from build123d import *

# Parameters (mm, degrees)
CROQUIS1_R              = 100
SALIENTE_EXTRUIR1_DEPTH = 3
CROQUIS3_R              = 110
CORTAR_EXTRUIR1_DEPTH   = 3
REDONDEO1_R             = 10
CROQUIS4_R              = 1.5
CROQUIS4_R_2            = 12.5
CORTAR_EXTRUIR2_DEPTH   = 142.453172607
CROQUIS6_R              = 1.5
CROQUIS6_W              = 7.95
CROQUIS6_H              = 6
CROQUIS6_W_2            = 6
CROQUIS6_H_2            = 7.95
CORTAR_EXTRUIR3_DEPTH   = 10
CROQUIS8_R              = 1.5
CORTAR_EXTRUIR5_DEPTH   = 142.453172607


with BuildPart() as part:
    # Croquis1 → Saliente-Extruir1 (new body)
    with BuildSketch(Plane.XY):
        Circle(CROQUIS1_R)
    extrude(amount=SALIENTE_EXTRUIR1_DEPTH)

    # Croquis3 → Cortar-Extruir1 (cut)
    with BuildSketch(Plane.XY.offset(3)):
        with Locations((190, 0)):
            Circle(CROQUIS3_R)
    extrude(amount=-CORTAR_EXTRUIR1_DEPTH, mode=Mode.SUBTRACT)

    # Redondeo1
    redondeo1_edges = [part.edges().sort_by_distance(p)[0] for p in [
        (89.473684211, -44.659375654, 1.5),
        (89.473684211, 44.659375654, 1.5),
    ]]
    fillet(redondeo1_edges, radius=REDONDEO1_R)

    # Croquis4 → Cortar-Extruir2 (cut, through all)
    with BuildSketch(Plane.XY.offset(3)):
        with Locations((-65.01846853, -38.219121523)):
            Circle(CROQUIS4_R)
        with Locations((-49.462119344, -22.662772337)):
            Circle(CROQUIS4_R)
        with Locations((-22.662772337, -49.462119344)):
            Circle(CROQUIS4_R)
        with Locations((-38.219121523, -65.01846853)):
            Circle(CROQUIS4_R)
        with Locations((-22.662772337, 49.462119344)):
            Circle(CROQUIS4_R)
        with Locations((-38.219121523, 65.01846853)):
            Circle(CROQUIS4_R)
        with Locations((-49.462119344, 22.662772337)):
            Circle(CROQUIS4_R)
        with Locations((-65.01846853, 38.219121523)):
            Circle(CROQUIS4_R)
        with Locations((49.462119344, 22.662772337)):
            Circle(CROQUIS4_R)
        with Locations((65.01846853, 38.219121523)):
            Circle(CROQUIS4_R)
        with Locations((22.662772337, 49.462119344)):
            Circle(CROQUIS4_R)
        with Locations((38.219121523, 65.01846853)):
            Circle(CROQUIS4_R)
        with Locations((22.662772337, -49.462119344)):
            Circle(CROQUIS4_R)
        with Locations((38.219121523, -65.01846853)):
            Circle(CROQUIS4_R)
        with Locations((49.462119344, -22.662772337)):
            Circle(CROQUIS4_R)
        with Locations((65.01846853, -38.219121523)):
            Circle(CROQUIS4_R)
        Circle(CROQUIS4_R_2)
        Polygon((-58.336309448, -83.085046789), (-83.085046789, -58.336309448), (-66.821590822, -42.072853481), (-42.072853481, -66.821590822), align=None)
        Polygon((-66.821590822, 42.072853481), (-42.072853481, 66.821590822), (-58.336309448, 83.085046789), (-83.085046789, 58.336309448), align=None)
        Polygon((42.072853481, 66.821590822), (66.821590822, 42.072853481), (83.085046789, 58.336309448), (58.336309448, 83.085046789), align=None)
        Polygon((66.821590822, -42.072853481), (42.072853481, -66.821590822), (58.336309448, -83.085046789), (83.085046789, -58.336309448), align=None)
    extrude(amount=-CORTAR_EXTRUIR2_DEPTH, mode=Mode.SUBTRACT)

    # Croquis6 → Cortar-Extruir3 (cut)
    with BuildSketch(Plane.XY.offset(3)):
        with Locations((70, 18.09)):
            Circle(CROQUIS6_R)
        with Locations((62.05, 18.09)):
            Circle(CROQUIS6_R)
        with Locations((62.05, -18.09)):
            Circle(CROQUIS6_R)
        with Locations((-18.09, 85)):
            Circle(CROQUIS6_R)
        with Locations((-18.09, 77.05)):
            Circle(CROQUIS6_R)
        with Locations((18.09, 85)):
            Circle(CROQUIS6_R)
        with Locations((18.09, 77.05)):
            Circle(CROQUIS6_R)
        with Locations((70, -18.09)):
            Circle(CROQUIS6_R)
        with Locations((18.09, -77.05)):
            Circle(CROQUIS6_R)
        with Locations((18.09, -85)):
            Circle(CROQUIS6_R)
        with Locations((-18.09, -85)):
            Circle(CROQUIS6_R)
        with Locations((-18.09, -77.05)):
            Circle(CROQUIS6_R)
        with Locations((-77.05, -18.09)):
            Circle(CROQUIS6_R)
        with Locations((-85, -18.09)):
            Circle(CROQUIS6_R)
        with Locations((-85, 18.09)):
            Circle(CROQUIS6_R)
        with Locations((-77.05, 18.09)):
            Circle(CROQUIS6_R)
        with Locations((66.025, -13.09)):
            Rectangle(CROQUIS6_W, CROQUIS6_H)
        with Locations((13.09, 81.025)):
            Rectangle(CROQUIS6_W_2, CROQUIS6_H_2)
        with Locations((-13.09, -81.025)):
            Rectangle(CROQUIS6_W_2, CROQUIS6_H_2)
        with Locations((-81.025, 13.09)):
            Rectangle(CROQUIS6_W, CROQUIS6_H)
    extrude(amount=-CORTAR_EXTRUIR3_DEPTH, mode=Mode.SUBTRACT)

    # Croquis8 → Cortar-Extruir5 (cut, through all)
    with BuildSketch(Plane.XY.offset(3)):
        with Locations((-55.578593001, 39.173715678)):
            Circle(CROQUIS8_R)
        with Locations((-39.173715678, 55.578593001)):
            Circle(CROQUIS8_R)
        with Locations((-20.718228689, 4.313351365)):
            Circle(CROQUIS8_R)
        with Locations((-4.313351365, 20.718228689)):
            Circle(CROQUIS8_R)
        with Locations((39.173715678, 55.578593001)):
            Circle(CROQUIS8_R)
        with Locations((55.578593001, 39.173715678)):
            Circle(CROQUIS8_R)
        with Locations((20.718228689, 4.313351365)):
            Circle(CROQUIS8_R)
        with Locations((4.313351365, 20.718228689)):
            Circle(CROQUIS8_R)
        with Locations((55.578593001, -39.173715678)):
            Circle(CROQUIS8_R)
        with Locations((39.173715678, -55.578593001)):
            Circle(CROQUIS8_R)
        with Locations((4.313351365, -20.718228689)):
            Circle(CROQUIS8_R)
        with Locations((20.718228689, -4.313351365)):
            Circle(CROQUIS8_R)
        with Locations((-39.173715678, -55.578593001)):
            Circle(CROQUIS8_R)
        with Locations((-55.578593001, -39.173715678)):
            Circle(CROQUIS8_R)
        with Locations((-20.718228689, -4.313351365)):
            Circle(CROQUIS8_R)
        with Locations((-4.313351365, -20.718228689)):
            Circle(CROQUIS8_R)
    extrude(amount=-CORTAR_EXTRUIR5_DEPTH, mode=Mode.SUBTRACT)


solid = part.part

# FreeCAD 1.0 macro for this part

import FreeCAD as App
import Part
import Sketcher


def edges_at(feature, points):
    """Names of the edges that pass closest to the given points."""
    edges = feature.Shape.Edges
    near = lambda p: min(range(len(edges)), key=lambda i: edges[i].distToShape(Part.Vertex(*p))[0])
    return sorted({f"Edge{near(p) + 1}" for p in points})

doc = App.newDocument("Part")
body = doc.addObject("PartDesign::Body", "Body")

sketch1 = body.newObject("Sketcher::SketchObject", "Sketch")
sketch1.AttachmentSupport = (doc.getObject("XY_Plane"), [""])
sketch1.MapMode = "FlatFace"
sketch1.addGeometry(Part.Circle(App.Vector(0, 0, 0), App.Vector(0, 0, 1), 100), False)
sketch1.addConstraint(Sketcher.Constraint("Coincident", 0, 3, -1, 1))
sketch1.addConstraint(Sketcher.Constraint("Diameter", 0, 200.0))
pad1 = body.newObject("PartDesign::Pad", "Pad")
pad1.Profile = sketch1
pad1.Length = 3

sketch2 = body.newObject("Sketcher::SketchObject", "Sketch001")
sketch2.AttachmentSupport = (doc.getObject("XY_Plane"), [""])
sketch2.MapMode = "FlatFace"
sketch2.AttachmentOffset = App.Placement(App.Vector(0, 0, 3), App.Rotation())
sketch2.addGeometry(Part.Circle(App.Vector(190, 0, 0), App.Vector(0, 0, 1), 110), False)
sketch2.addConstraint(Sketcher.Constraint("PointOnObject", 0, 3, -1))
sketch2.addConstraint(Sketcher.Constraint("Diameter", 0, 220.0))
sketch2.addConstraint(Sketcher.Constraint("DistanceX", -1, 1, 0, 3, 190.0))
pocket1 = body.newObject("PartDesign::Pocket", "Pocket")
pocket1.Profile = sketch2
pocket1.Length = 3
doc.recompute()

fillet = body.newObject("PartDesign::Fillet", "Fillet")
fillet.Base = (pocket1, edges_at(pocket1, [(89.474, -44.659, 1.5), (89.474, 44.659, 1.5)]))
fillet.Radius = 10

sketch3 = body.newObject("Sketcher::SketchObject", "Sketch002")
sketch3.AttachmentSupport = (doc.getObject("XY_Plane"), [""])
sketch3.MapMode = "FlatFace"
sketch3.AttachmentOffset = App.Placement(App.Vector(0, 0, 3), App.Rotation())
sketch3.addGeometry(Part.Circle(App.Vector(-65.018469, -38.219122, 0), App.Vector(0, 0, 1), 1.5), False)
sketch3.addGeometry(Part.Circle(App.Vector(-49.462119, -22.662772, 0), App.Vector(0, 0, 1), 1.5), False)
sketch3.addGeometry(Part.Circle(App.Vector(-22.662772, -49.462119, 0), App.Vector(0, 0, 1), 1.5), False)
sketch3.addGeometry(Part.Circle(App.Vector(-38.219122, -65.018469, 0), App.Vector(0, 0, 1), 1.5), False)
sketch3.addGeometry(Part.Circle(App.Vector(-22.662772, 49.462119, 0), App.Vector(0, 0, 1), 1.5), False)
sketch3.addGeometry(Part.Circle(App.Vector(-38.219122, 65.018469, 0), App.Vector(0, 0, 1), 1.5), False)
sketch3.addGeometry(Part.Circle(App.Vector(-49.462119, 22.662772, 0), App.Vector(0, 0, 1), 1.5), False)
sketch3.addGeometry(Part.Circle(App.Vector(-65.018469, 38.219122, 0), App.Vector(0, 0, 1), 1.5), False)
sketch3.addGeometry(Part.Circle(App.Vector(49.462119, 22.662772, 0), App.Vector(0, 0, 1), 1.5), False)
sketch3.addGeometry(Part.Circle(App.Vector(65.018469, 38.219122, 0), App.Vector(0, 0, 1), 1.5), False)
sketch3.addGeometry(Part.Circle(App.Vector(22.662772, 49.462119, 0), App.Vector(0, 0, 1), 1.5), False)
sketch3.addGeometry(Part.Circle(App.Vector(38.219122, 65.018469, 0), App.Vector(0, 0, 1), 1.5), False)
sketch3.addGeometry(Part.Circle(App.Vector(22.662772, -49.462119, 0), App.Vector(0, 0, 1), 1.5), False)
sketch3.addGeometry(Part.Circle(App.Vector(38.219122, -65.018469, 0), App.Vector(0, 0, 1), 1.5), False)
sketch3.addGeometry(Part.Circle(App.Vector(49.462119, -22.662772, 0), App.Vector(0, 0, 1), 1.5), False)
sketch3.addGeometry(Part.Circle(App.Vector(65.018469, -38.219122, 0), App.Vector(0, 0, 1), 1.5), False)
sketch3.addGeometry(Part.Circle(App.Vector(0, 0, 0), App.Vector(0, 0, 1), 12.5), False)
sketch3.addGeometry(Part.LineSegment(App.Vector(-83.085047, -58.336309, 0), App.Vector(-58.336309, -83.085047, 0)), False)
sketch3.addGeometry(Part.LineSegment(App.Vector(-58.336309, -83.085047, 0), App.Vector(-42.072853, -66.821591, 0)), False)
sketch3.addGeometry(Part.LineSegment(App.Vector(-42.072853, -66.821591, 0), App.Vector(-66.821591, -42.072853, 0)), False)
sketch3.addGeometry(Part.LineSegment(App.Vector(-66.821591, -42.072853, 0), App.Vector(-83.085047, -58.336309, 0)), False)
sketch3.addGeometry(Part.LineSegment(App.Vector(-66.821591, 42.072853, 0), App.Vector(-42.072853, 66.821591, 0)), False)
sketch3.addGeometry(Part.LineSegment(App.Vector(-42.072853, 66.821591, 0), App.Vector(-58.336309, 83.085047, 0)), False)
sketch3.addGeometry(Part.LineSegment(App.Vector(-58.336309, 83.085047, 0), App.Vector(-83.085047, 58.336309, 0)), False)
sketch3.addGeometry(Part.LineSegment(App.Vector(-83.085047, 58.336309, 0), App.Vector(-66.821591, 42.072853, 0)), False)
sketch3.addGeometry(Part.LineSegment(App.Vector(42.072853, 66.821591, 0), App.Vector(66.821591, 42.072853, 0)), False)
sketch3.addGeometry(Part.LineSegment(App.Vector(66.821591, 42.072853, 0), App.Vector(83.085047, 58.336309, 0)), False)
sketch3.addGeometry(Part.LineSegment(App.Vector(83.085047, 58.336309, 0), App.Vector(58.336309, 83.085047, 0)), False)
sketch3.addGeometry(Part.LineSegment(App.Vector(58.336309, 83.085047, 0), App.Vector(42.072853, 66.821591, 0)), False)
sketch3.addGeometry(Part.LineSegment(App.Vector(66.821591, -42.072853, 0), App.Vector(42.072853, -66.821591, 0)), False)
sketch3.addGeometry(Part.LineSegment(App.Vector(42.072853, -66.821591, 0), App.Vector(58.336309, -83.085047, 0)), False)
sketch3.addGeometry(Part.LineSegment(App.Vector(58.336309, -83.085047, 0), App.Vector(83.085047, -58.336309, 0)), False)
sketch3.addGeometry(Part.LineSegment(App.Vector(83.085047, -58.336309, 0), App.Vector(66.821591, -42.072853, 0)), False)
sketch3.addConstraint(Sketcher.Constraint("Coincident", 17, 2, 18, 1))
sketch3.addConstraint(Sketcher.Constraint("Coincident", 18, 2, 19, 1))
sketch3.addConstraint(Sketcher.Constraint("Coincident", 19, 2, 20, 1))
sketch3.addConstraint(Sketcher.Constraint("Coincident", 20, 2, 17, 1))
sketch3.addConstraint(Sketcher.Constraint("Coincident", 21, 2, 22, 1))
sketch3.addConstraint(Sketcher.Constraint("Coincident", 22, 2, 23, 1))
sketch3.addConstraint(Sketcher.Constraint("Coincident", 23, 2, 24, 1))
sketch3.addConstraint(Sketcher.Constraint("Coincident", 24, 2, 21, 1))
sketch3.addConstraint(Sketcher.Constraint("Coincident", 25, 2, 26, 1))
sketch3.addConstraint(Sketcher.Constraint("Coincident", 26, 2, 27, 1))
sketch3.addConstraint(Sketcher.Constraint("Coincident", 27, 2, 28, 1))
sketch3.addConstraint(Sketcher.Constraint("Coincident", 28, 2, 25, 1))
sketch3.addConstraint(Sketcher.Constraint("Coincident", 29, 2, 30, 1))
sketch3.addConstraint(Sketcher.Constraint("Coincident", 30, 2, 31, 1))
sketch3.addConstraint(Sketcher.Constraint("Coincident", 31, 2, 32, 1))
sketch3.addConstraint(Sketcher.Constraint("Coincident", 32, 2, 29, 1))
sketch3.addConstraint(Sketcher.Constraint("Coincident", 16, 3, -1, 1))
sketch3.addConstraint(Sketcher.Constraint("Equal", 0, 1))
sketch3.addConstraint(Sketcher.Constraint("Equal", 1, 2))
sketch3.addConstraint(Sketcher.Constraint("Equal", 2, 3))
sketch3.addConstraint(Sketcher.Constraint("Equal", 3, 4))
sketch3.addConstraint(Sketcher.Constraint("Equal", 4, 5))
sketch3.addConstraint(Sketcher.Constraint("Equal", 5, 6))
sketch3.addConstraint(Sketcher.Constraint("Equal", 6, 7))
sketch3.addConstraint(Sketcher.Constraint("Equal", 7, 8))
sketch3.addConstraint(Sketcher.Constraint("Equal", 8, 9))
sketch3.addConstraint(Sketcher.Constraint("Equal", 9, 10))
sketch3.addConstraint(Sketcher.Constraint("Equal", 10, 11))
sketch3.addConstraint(Sketcher.Constraint("Equal", 11, 12))
sketch3.addConstraint(Sketcher.Constraint("Equal", 12, 13))
sketch3.addConstraint(Sketcher.Constraint("Equal", 13, 14))
sketch3.addConstraint(Sketcher.Constraint("Equal", 14, 15))
sketch3.addConstraint(Sketcher.Constraint("Symmetric", 1, 3, 8, 3, -1, 1))
sketch3.addConstraint(Sketcher.Constraint("Symmetric", 0, 3, 9, 3, -1, 1))
sketch3.addConstraint(Sketcher.Constraint("Symmetric", 2, 3, 10, 3, -1, 1))
sketch3.addConstraint(Sketcher.Constraint("Symmetric", 3, 3, 11, 3, -1, 1))
sketch3.addConstraint(Sketcher.Constraint("Symmetric", 4, 3, 12, 3, -1, 1))
sketch3.addConstraint(Sketcher.Constraint("Symmetric", 5, 3, 13, 3, -1, 1))
sketch3.addConstraint(Sketcher.Constraint("Symmetric", 6, 3, 14, 3, -1, 1))
sketch3.addConstraint(Sketcher.Constraint("Symmetric", 7, 3, 15, 3, -1, 1))
sketch3.addConstraint(Sketcher.Constraint("Symmetric", 19, 2, 25, 2, -1, 1))
sketch3.addConstraint(Sketcher.Constraint("Symmetric", 20, 2, 26, 2, -1, 1))
sketch3.addConstraint(Sketcher.Constraint("Symmetric", 17, 2, 27, 2, -1, 1))
sketch3.addConstraint(Sketcher.Constraint("Symmetric", 18, 2, 28, 2, -1, 1))
sketch3.addConstraint(Sketcher.Constraint("Symmetric", 21, 2, 29, 2, -1, 1))
sketch3.addConstraint(Sketcher.Constraint("Symmetric", 22, 2, 30, 2, -1, 1))
sketch3.addConstraint(Sketcher.Constraint("Symmetric", 23, 2, 31, 2, -1, 1))
sketch3.addConstraint(Sketcher.Constraint("Symmetric", 24, 2, 32, 2, -1, 1))
sketch3.addConstraint(Sketcher.Constraint("Symmetric", 6, 3, 8, 3, -2))
sketch3.addConstraint(Sketcher.Constraint("Symmetric", 7, 3, 9, 3, -2))
sketch3.addConstraint(Sketcher.Constraint("Symmetric", 4, 3, 10, 3, -2))
sketch3.addConstraint(Sketcher.Constraint("Symmetric", 5, 3, 11, 3, -2))
sketch3.addConstraint(Sketcher.Constraint("Symmetric", 24, 2, 25, 2, -2))
sketch3.addConstraint(Sketcher.Constraint("Symmetric", 23, 2, 26, 2, -2))
sketch3.addConstraint(Sketcher.Constraint("Symmetric", 22, 2, 27, 2, -2))
sketch3.addConstraint(Sketcher.Constraint("Symmetric", 21, 2, 28, 2, -2))
sketch3.addConstraint(Sketcher.Constraint("Perpendicular", 17, 18))
sketch3.addConstraint(Sketcher.Constraint("Perpendicular", 18, 19))
sketch3.addConstraint(Sketcher.Constraint("Perpendicular", 19, 20))
sketch3.addConstraint(Sketcher.Constraint("Parallel", 20, 21))
sketch3.addConstraint(Sketcher.Constraint("Diameter", 0, 3.0))
sketch3.addConstraint(Sketcher.Constraint("Diameter", 16, 25.0))
sketch3.addConstraint(Sketcher.Constraint("Distance", 17, 35.0))
sketch3.addConstraint(Sketcher.Constraint("Distance", 18, 23.0))
sketch3.addConstraint(Sketcher.Constraint("DistanceX", 0, 3, -1, 1, 65.018469))
sketch3.addConstraint(Sketcher.Constraint("DistanceY", 0, 3, -1, 1, 38.219122))
sketch3.addConstraint(Sketcher.Constraint("DistanceX", 1, 3, -1, 1, 49.462119))
sketch3.addConstraint(Sketcher.Constraint("DistanceY", 2, 3, -1, 1, 49.462119))
sketch3.addConstraint(Sketcher.Constraint("DistanceX", 3, 3, -1, 1, 38.219122))
sketch3.addConstraint(Sketcher.Constraint("DistanceY", 3, 3, -1, 1, 65.018469))
sketch3.addConstraint(Sketcher.Constraint("DistanceX", 17, 2, -1, 1, 58.336309))
sketch3.addConstraint(Sketcher.Constraint("DistanceY", 18, 2, -1, 1, 66.821591))
sketch3.addConstraint(Sketcher.Constraint("DistanceY", 0, 3, 1, 3, 15.556349))
sketch3.addConstraint(Sketcher.Constraint("DistanceX", 3, 3, 2, 3, 15.556349))
pocket2 = body.newObject("PartDesign::Pocket", "Pocket001")
pocket2.Profile = sketch3
pocket2.Type = "ThroughAll"

sketch4 = body.newObject("Sketcher::SketchObject", "Sketch003")
sketch4.AttachmentSupport = (doc.getObject("XY_Plane"), [""])
sketch4.MapMode = "FlatFace"
sketch4.AttachmentOffset = App.Placement(App.Vector(0, 0, 3), App.Rotation())
sketch4.addGeometry(Part.Circle(App.Vector(70, 18.09, 0), App.Vector(0, 0, 1), 1.5), False)
sketch4.addGeometry(Part.Circle(App.Vector(62.05, 18.09, 0), App.Vector(0, 0, 1), 1.5), False)
sketch4.addGeometry(Part.Circle(App.Vector(62.05, -18.09, 0), App.Vector(0, 0, 1), 1.5), False)
sketch4.addGeometry(Part.Circle(App.Vector(-18.09, 85, 0), App.Vector(0, 0, 1), 1.5), False)
sketch4.addGeometry(Part.Circle(App.Vector(-18.09, 77.05, 0), App.Vector(0, 0, 1), 1.5), False)
sketch4.addGeometry(Part.Circle(App.Vector(18.09, 85, 0), App.Vector(0, 0, 1), 1.5), False)
sketch4.addGeometry(Part.Circle(App.Vector(18.09, 77.05, 0), App.Vector(0, 0, 1), 1.5), False)
sketch4.addGeometry(Part.Circle(App.Vector(70, -18.09, 0), App.Vector(0, 0, 1), 1.5), False)
sketch4.addGeometry(Part.Circle(App.Vector(18.09, -77.05, 0), App.Vector(0, 0, 1), 1.5), False)
sketch4.addGeometry(Part.Circle(App.Vector(18.09, -85, 0), App.Vector(0, 0, 1), 1.5), False)
sketch4.addGeometry(Part.Circle(App.Vector(-18.09, -85, 0), App.Vector(0, 0, 1), 1.5), False)
sketch4.addGeometry(Part.Circle(App.Vector(-18.09, -77.05, 0), App.Vector(0, 0, 1), 1.5), False)
sketch4.addGeometry(Part.Circle(App.Vector(-77.05, -18.09, 0), App.Vector(0, 0, 1), 1.5), False)
sketch4.addGeometry(Part.Circle(App.Vector(-85, -18.09, 0), App.Vector(0, 0, 1), 1.5), False)
sketch4.addGeometry(Part.Circle(App.Vector(-85, 18.09, 0), App.Vector(0, 0, 1), 1.5), False)
sketch4.addGeometry(Part.Circle(App.Vector(-77.05, 18.09, 0), App.Vector(0, 0, 1), 1.5), False)
sketch4.addGeometry(Part.LineSegment(App.Vector(62.05, -10.09, 0), App.Vector(62.05, -16.09, 0)), False)
sketch4.addGeometry(Part.LineSegment(App.Vector(62.05, -16.09, 0), App.Vector(70, -16.09, 0)), False)
sketch4.addGeometry(Part.LineSegment(App.Vector(70, -16.09, 0), App.Vector(70, -10.09, 0)), False)
sketch4.addGeometry(Part.LineSegment(App.Vector(70, -10.09, 0), App.Vector(62.05, -10.09, 0)), False)
sketch4.addGeometry(Part.LineSegment(App.Vector(10.09, 85, 0), App.Vector(10.09, 77.05, 0)), False)
sketch4.addGeometry(Part.LineSegment(App.Vector(10.09, 77.05, 0), App.Vector(16.09, 77.05, 0)), False)
sketch4.addGeometry(Part.LineSegment(App.Vector(16.09, 77.05, 0), App.Vector(16.09, 85, 0)), False)
sketch4.addGeometry(Part.LineSegment(App.Vector(16.09, 85, 0), App.Vector(10.09, 85, 0)), False)
sketch4.addGeometry(Part.LineSegment(App.Vector(-16.09, -77.05, 0), App.Vector(-16.09, -85, 0)), False)
sketch4.addGeometry(Part.LineSegment(App.Vector(-16.09, -85, 0), App.Vector(-10.09, -85, 0)), False)
sketch4.addGeometry(Part.LineSegment(App.Vector(-10.09, -85, 0), App.Vector(-10.09, -77.05, 0)), False)
sketch4.addGeometry(Part.LineSegment(App.Vector(-10.09, -77.05, 0), App.Vector(-16.09, -77.05, 0)), False)
sketch4.addGeometry(Part.LineSegment(App.Vector(-85, 16.09, 0), App.Vector(-85, 10.09, 0)), False)
sketch4.addGeometry(Part.LineSegment(App.Vector(-85, 10.09, 0), App.Vector(-77.05, 10.09, 0)), False)
sketch4.addGeometry(Part.LineSegment(App.Vector(-77.05, 10.09, 0), App.Vector(-77.05, 16.09, 0)), False)
sketch4.addGeometry(Part.LineSegment(App.Vector(-77.05, 16.09, 0), App.Vector(-85, 16.09, 0)), False)
sketch4.addConstraint(Sketcher.Constraint("Coincident", 16, 2, 17, 1))
sketch4.addConstraint(Sketcher.Constraint("Coincident", 17, 2, 18, 1))
sketch4.addConstraint(Sketcher.Constraint("Coincident", 18, 2, 19, 1))
sketch4.addConstraint(Sketcher.Constraint("Coincident", 19, 2, 16, 1))
sketch4.addConstraint(Sketcher.Constraint("Coincident", 20, 2, 21, 1))
sketch4.addConstraint(Sketcher.Constraint("Coincident", 21, 2, 22, 1))
sketch4.addConstraint(Sketcher.Constraint("Coincident", 22, 2, 23, 1))
sketch4.addConstraint(Sketcher.Constraint("Coincident", 23, 2, 20, 1))
sketch4.addConstraint(Sketcher.Constraint("Coincident", 24, 2, 25, 1))
sketch4.addConstraint(Sketcher.Constraint("Coincident", 25, 2, 26, 1))
sketch4.addConstraint(Sketcher.Constraint("Coincident", 26, 2, 27, 1))
sketch4.addConstraint(Sketcher.Constraint("Coincident", 27, 2, 24, 1))
sketch4.addConstraint(Sketcher.Constraint("Coincident", 28, 2, 29, 1))
sketch4.addConstraint(Sketcher.Constraint("Coincident", 29, 2, 30, 1))
sketch4.addConstraint(Sketcher.Constraint("Coincident", 30, 2, 31, 1))
sketch4.addConstraint(Sketcher.Constraint("Coincident", 31, 2, 28, 1))
sketch4.addConstraint(Sketcher.Constraint("Vertical", 16))
sketch4.addConstraint(Sketcher.Constraint("Horizontal", 17))
sketch4.addConstraint(Sketcher.Constraint("Vertical", 18))
sketch4.addConstraint(Sketcher.Constraint("Horizontal", 19))
sketch4.addConstraint(Sketcher.Constraint("Vertical", 20))
sketch4.addConstraint(Sketcher.Constraint("Horizontal", 21))
sketch4.addConstraint(Sketcher.Constraint("Vertical", 22))
sketch4.addConstraint(Sketcher.Constraint("Horizontal", 23))
sketch4.addConstraint(Sketcher.Constraint("Vertical", 24))
sketch4.addConstraint(Sketcher.Constraint("Horizontal", 25))
sketch4.addConstraint(Sketcher.Constraint("Vertical", 26))
sketch4.addConstraint(Sketcher.Constraint("Horizontal", 27))
sketch4.addConstraint(Sketcher.Constraint("Vertical", 28))
sketch4.addConstraint(Sketcher.Constraint("Horizontal", 29))
sketch4.addConstraint(Sketcher.Constraint("Vertical", 30))
sketch4.addConstraint(Sketcher.Constraint("Horizontal", 31))
sketch4.addConstraint(Sketcher.Constraint("Equal", 0, 1))
sketch4.addConstraint(Sketcher.Constraint("Equal", 1, 2))
sketch4.addConstraint(Sketcher.Constraint("Equal", 2, 3))
sketch4.addConstraint(Sketcher.Constraint("Equal", 3, 4))
sketch4.addConstraint(Sketcher.Constraint("Equal", 4, 5))
sketch4.addConstraint(Sketcher.Constraint("Equal", 5, 6))
sketch4.addConstraint(Sketcher.Constraint("Equal", 6, 7))
sketch4.addConstraint(Sketcher.Constraint("Equal", 7, 8))
sketch4.addConstraint(Sketcher.Constraint("Equal", 8, 9))
sketch4.addConstraint(Sketcher.Constraint("Equal", 9, 10))
sketch4.addConstraint(Sketcher.Constraint("Equal", 10, 11))
sketch4.addConstraint(Sketcher.Constraint("Equal", 11, 12))
sketch4.addConstraint(Sketcher.Constraint("Equal", 12, 13))
sketch4.addConstraint(Sketcher.Constraint("Equal", 13, 14))
sketch4.addConstraint(Sketcher.Constraint("Equal", 14, 15))
sketch4.addConstraint(Sketcher.Constraint("Symmetric", 4, 3, 8, 3, -1, 1))
sketch4.addConstraint(Sketcher.Constraint("Symmetric", 3, 3, 9, 3, -1, 1))
sketch4.addConstraint(Sketcher.Constraint("Symmetric", 5, 3, 10, 3, -1, 1))
sketch4.addConstraint(Sketcher.Constraint("Symmetric", 6, 3, 11, 3, -1, 1))
sketch4.addConstraint(Sketcher.Constraint("Symmetric", 22, 2, 24, 2, -1, 1))
sketch4.addConstraint(Sketcher.Constraint("Symmetric", 20, 2, 26, 2, -1, 1))
sketch4.addConstraint(Sketcher.Constraint("Symmetric", 3, 3, 5, 3, -2))
sketch4.addConstraint(Sketcher.Constraint("Symmetric", 4, 3, 6, 3, -2))
sketch4.addConstraint(Sketcher.Constraint("Symmetric", 1, 3, 2, 3, -1))
sketch4.addConstraint(Sketcher.Constraint("Symmetric", 0, 3, 7, 3, -1))
sketch4.addConstraint(Sketcher.Constraint("Symmetric", 13, 3, 14, 3, -1))
sketch4.addConstraint(Sketcher.Constraint("Symmetric", 12, 3, 15, 3, -1))
sketch4.addConstraint(Sketcher.Constraint("Horizontal", 0, 3, 1, 3))
sketch4.addConstraint(Sketcher.Constraint("Horizontal", 7, 3, 12, 3))
sketch4.addConstraint(Sketcher.Constraint("Horizontal", 12, 3, 13, 3))
sketch4.addConstraint(Sketcher.Constraint("Horizontal", 6, 3, 20, 2))
sketch4.addConstraint(Sketcher.Constraint("Horizontal", 5, 3, 22, 2))
sketch4.addConstraint(Sketcher.Constraint("Vertical", 3, 3, 4, 3))
sketch4.addConstraint(Sketcher.Constraint("Vertical", 2, 3, 16, 2))
sketch4.addConstraint(Sketcher.Constraint("Vertical", 7, 3, 17, 2))
sketch4.addConstraint(Sketcher.Constraint("Vertical", 14, 3, 28, 2))
sketch4.addConstraint(Sketcher.Constraint("Vertical", 15, 3, 29, 2))
sketch4.addConstraint(Sketcher.Constraint("Equal", 19, 29))
sketch4.addConstraint(Sketcher.Constraint("Equal", 27, 16))
sketch4.addConstraint(Sketcher.Constraint("Equal", 31, 20))
sketch4.addConstraint(Sketcher.Constraint("Equal", 18, 28))
sketch4.addConstraint(Sketcher.Constraint("Diameter", 0, 3.0))
sketch4.addConstraint(Sketcher.Constraint("DistanceX", 21, 1, 21, 2, 6.0))
sketch4.addConstraint(Sketcher.Constraint("DistanceX", -1, 1, 0, 3, 70.0))
sketch4.addConstraint(Sketcher.Constraint("DistanceY", -1, 1, 3, 3, 85.0))
sketch4.addConstraint(Sketcher.Constraint("DistanceX", 13, 3, -1, 1, 85.0))
sketch4.addConstraint(Sketcher.Constraint("DistanceY", 2, 3, 16, 2, 2.0))
sketch4.addConstraint(Sketcher.Constraint("DistanceX", 20, 2, 6, 3, 8.0))
sketch4.addConstraint(Sketcher.Constraint("DistanceY", 28, 2, 14, 3, 8.0))
sketch4.addConstraint(Sketcher.Constraint("DistanceX", 17, 1, 17, 2, 7.95))
sketch4.addConstraint(Sketcher.Constraint("DistanceY", -1, 1, 0, 3, 18.09))
sketch4.addConstraint(Sketcher.Constraint("DistanceX", 3, 3, -1, 1, 18.09))
pocket3 = body.newObject("PartDesign::Pocket", "Pocket002")
pocket3.Profile = sketch4
pocket3.Length = 10

sketch5 = body.newObject("Sketcher::SketchObject", "Sketch004")
sketch5.AttachmentSupport = (doc.getObject("XY_Plane"), [""])
sketch5.MapMode = "FlatFace"
sketch5.AttachmentOffset = App.Placement(App.Vector(0, 0, 3), App.Rotation())
sketch5.addGeometry(Part.Circle(App.Vector(-55.578593, 39.173716, 0), App.Vector(0, 0, 1), 1.5), False)
sketch5.addGeometry(Part.Circle(App.Vector(-39.173716, 55.578593, 0), App.Vector(0, 0, 1), 1.5), False)
sketch5.addGeometry(Part.Circle(App.Vector(-20.718229, 4.313351, 0), App.Vector(0, 0, 1), 1.5), False)
sketch5.addGeometry(Part.Circle(App.Vector(-4.313351, 20.718229, 0), App.Vector(0, 0, 1), 1.5), False)
sketch5.addGeometry(Part.Circle(App.Vector(39.173716, 55.578593, 0), App.Vector(0, 0, 1), 1.5), False)
sketch5.addGeometry(Part.Circle(App.Vector(55.578593, 39.173716, 0), App.Vector(0, 0, 1), 1.5), False)
sketch5.addGeometry(Part.Circle(App.Vector(20.718229, 4.313351, 0), App.Vector(0, 0, 1), 1.5), False)
sketch5.addGeometry(Part.Circle(App.Vector(4.313351, 20.718229, 0), App.Vector(0, 0, 1), 1.5), False)
sketch5.addGeometry(Part.Circle(App.Vector(55.578593, -39.173716, 0), App.Vector(0, 0, 1), 1.5), False)
sketch5.addGeometry(Part.Circle(App.Vector(39.173716, -55.578593, 0), App.Vector(0, 0, 1), 1.5), False)
sketch5.addGeometry(Part.Circle(App.Vector(4.313351, -20.718229, 0), App.Vector(0, 0, 1), 1.5), False)
sketch5.addGeometry(Part.Circle(App.Vector(20.718229, -4.313351, 0), App.Vector(0, 0, 1), 1.5), False)
sketch5.addGeometry(Part.Circle(App.Vector(-39.173716, -55.578593, 0), App.Vector(0, 0, 1), 1.5), False)
sketch5.addGeometry(Part.Circle(App.Vector(-55.578593, -39.173716, 0), App.Vector(0, 0, 1), 1.5), False)
sketch5.addGeometry(Part.Circle(App.Vector(-20.718229, -4.313351, 0), App.Vector(0, 0, 1), 1.5), False)
sketch5.addGeometry(Part.Circle(App.Vector(-4.313351, -20.718229, 0), App.Vector(0, 0, 1), 1.5), False)
sketch5.addConstraint(Sketcher.Constraint("Equal", 0, 1))
sketch5.addConstraint(Sketcher.Constraint("Equal", 1, 2))
sketch5.addConstraint(Sketcher.Constraint("Equal", 2, 3))
sketch5.addConstraint(Sketcher.Constraint("Equal", 3, 4))
sketch5.addConstraint(Sketcher.Constraint("Equal", 4, 5))
sketch5.addConstraint(Sketcher.Constraint("Equal", 5, 6))
sketch5.addConstraint(Sketcher.Constraint("Equal", 6, 7))
sketch5.addConstraint(Sketcher.Constraint("Equal", 7, 8))
sketch5.addConstraint(Sketcher.Constraint("Equal", 8, 9))
sketch5.addConstraint(Sketcher.Constraint("Equal", 9, 10))
sketch5.addConstraint(Sketcher.Constraint("Equal", 10, 11))
sketch5.addConstraint(Sketcher.Constraint("Equal", 11, 12))
sketch5.addConstraint(Sketcher.Constraint("Equal", 12, 13))
sketch5.addConstraint(Sketcher.Constraint("Equal", 13, 14))
sketch5.addConstraint(Sketcher.Constraint("Equal", 14, 15))
sketch5.addConstraint(Sketcher.Constraint("Symmetric", 0, 3, 8, 3, -1, 1))
sketch5.addConstraint(Sketcher.Constraint("Symmetric", 1, 3, 9, 3, -1, 1))
sketch5.addConstraint(Sketcher.Constraint("Symmetric", 3, 3, 10, 3, -1, 1))
sketch5.addConstraint(Sketcher.Constraint("Symmetric", 2, 3, 11, 3, -1, 1))
sketch5.addConstraint(Sketcher.Constraint("Symmetric", 4, 3, 12, 3, -1, 1))
sketch5.addConstraint(Sketcher.Constraint("Symmetric", 5, 3, 13, 3, -1, 1))
sketch5.addConstraint(Sketcher.Constraint("Symmetric", 6, 3, 14, 3, -1, 1))
sketch5.addConstraint(Sketcher.Constraint("Symmetric", 7, 3, 15, 3, -1, 1))
sketch5.addConstraint(Sketcher.Constraint("Symmetric", 1, 3, 4, 3, -2))
sketch5.addConstraint(Sketcher.Constraint("Symmetric", 0, 3, 5, 3, -2))
sketch5.addConstraint(Sketcher.Constraint("Symmetric", 2, 3, 6, 3, -2))
sketch5.addConstraint(Sketcher.Constraint("Symmetric", 3, 3, 7, 3, -2))
sketch5.addConstraint(Sketcher.Constraint("Diameter", 0, 3.0))
sketch5.addConstraint(Sketcher.Constraint("DistanceX", 2, 3, -1, 1, 20.718229))
sketch5.addConstraint(Sketcher.Constraint("DistanceY", -1, 1, 2, 3, 4.313351))
sketch5.addConstraint(Sketcher.Constraint("DistanceX", 3, 3, -1, 1, 4.313351))
sketch5.addConstraint(Sketcher.Constraint("DistanceY", -1, 1, 3, 3, 20.718229))
sketch5.addConstraint(Sketcher.Constraint("DistanceY", 2, 3, 1, 3, 51.265242))
sketch5.addConstraint(Sketcher.Constraint("DistanceX", 0, 3, 3, 3, 51.265242))
sketch5.addConstraint(Sketcher.Constraint("DistanceX", 1, 3, 4, 3, 78.347431))
sketch5.addConstraint(Sketcher.Constraint("DistanceY", 8, 3, 5, 3, 78.347431))
pocket4 = body.newObject("PartDesign::Pocket", "Pocket003")
pocket4.Profile = sketch5
pocket4.Type = "ThroughAll"

doc.recompute()
